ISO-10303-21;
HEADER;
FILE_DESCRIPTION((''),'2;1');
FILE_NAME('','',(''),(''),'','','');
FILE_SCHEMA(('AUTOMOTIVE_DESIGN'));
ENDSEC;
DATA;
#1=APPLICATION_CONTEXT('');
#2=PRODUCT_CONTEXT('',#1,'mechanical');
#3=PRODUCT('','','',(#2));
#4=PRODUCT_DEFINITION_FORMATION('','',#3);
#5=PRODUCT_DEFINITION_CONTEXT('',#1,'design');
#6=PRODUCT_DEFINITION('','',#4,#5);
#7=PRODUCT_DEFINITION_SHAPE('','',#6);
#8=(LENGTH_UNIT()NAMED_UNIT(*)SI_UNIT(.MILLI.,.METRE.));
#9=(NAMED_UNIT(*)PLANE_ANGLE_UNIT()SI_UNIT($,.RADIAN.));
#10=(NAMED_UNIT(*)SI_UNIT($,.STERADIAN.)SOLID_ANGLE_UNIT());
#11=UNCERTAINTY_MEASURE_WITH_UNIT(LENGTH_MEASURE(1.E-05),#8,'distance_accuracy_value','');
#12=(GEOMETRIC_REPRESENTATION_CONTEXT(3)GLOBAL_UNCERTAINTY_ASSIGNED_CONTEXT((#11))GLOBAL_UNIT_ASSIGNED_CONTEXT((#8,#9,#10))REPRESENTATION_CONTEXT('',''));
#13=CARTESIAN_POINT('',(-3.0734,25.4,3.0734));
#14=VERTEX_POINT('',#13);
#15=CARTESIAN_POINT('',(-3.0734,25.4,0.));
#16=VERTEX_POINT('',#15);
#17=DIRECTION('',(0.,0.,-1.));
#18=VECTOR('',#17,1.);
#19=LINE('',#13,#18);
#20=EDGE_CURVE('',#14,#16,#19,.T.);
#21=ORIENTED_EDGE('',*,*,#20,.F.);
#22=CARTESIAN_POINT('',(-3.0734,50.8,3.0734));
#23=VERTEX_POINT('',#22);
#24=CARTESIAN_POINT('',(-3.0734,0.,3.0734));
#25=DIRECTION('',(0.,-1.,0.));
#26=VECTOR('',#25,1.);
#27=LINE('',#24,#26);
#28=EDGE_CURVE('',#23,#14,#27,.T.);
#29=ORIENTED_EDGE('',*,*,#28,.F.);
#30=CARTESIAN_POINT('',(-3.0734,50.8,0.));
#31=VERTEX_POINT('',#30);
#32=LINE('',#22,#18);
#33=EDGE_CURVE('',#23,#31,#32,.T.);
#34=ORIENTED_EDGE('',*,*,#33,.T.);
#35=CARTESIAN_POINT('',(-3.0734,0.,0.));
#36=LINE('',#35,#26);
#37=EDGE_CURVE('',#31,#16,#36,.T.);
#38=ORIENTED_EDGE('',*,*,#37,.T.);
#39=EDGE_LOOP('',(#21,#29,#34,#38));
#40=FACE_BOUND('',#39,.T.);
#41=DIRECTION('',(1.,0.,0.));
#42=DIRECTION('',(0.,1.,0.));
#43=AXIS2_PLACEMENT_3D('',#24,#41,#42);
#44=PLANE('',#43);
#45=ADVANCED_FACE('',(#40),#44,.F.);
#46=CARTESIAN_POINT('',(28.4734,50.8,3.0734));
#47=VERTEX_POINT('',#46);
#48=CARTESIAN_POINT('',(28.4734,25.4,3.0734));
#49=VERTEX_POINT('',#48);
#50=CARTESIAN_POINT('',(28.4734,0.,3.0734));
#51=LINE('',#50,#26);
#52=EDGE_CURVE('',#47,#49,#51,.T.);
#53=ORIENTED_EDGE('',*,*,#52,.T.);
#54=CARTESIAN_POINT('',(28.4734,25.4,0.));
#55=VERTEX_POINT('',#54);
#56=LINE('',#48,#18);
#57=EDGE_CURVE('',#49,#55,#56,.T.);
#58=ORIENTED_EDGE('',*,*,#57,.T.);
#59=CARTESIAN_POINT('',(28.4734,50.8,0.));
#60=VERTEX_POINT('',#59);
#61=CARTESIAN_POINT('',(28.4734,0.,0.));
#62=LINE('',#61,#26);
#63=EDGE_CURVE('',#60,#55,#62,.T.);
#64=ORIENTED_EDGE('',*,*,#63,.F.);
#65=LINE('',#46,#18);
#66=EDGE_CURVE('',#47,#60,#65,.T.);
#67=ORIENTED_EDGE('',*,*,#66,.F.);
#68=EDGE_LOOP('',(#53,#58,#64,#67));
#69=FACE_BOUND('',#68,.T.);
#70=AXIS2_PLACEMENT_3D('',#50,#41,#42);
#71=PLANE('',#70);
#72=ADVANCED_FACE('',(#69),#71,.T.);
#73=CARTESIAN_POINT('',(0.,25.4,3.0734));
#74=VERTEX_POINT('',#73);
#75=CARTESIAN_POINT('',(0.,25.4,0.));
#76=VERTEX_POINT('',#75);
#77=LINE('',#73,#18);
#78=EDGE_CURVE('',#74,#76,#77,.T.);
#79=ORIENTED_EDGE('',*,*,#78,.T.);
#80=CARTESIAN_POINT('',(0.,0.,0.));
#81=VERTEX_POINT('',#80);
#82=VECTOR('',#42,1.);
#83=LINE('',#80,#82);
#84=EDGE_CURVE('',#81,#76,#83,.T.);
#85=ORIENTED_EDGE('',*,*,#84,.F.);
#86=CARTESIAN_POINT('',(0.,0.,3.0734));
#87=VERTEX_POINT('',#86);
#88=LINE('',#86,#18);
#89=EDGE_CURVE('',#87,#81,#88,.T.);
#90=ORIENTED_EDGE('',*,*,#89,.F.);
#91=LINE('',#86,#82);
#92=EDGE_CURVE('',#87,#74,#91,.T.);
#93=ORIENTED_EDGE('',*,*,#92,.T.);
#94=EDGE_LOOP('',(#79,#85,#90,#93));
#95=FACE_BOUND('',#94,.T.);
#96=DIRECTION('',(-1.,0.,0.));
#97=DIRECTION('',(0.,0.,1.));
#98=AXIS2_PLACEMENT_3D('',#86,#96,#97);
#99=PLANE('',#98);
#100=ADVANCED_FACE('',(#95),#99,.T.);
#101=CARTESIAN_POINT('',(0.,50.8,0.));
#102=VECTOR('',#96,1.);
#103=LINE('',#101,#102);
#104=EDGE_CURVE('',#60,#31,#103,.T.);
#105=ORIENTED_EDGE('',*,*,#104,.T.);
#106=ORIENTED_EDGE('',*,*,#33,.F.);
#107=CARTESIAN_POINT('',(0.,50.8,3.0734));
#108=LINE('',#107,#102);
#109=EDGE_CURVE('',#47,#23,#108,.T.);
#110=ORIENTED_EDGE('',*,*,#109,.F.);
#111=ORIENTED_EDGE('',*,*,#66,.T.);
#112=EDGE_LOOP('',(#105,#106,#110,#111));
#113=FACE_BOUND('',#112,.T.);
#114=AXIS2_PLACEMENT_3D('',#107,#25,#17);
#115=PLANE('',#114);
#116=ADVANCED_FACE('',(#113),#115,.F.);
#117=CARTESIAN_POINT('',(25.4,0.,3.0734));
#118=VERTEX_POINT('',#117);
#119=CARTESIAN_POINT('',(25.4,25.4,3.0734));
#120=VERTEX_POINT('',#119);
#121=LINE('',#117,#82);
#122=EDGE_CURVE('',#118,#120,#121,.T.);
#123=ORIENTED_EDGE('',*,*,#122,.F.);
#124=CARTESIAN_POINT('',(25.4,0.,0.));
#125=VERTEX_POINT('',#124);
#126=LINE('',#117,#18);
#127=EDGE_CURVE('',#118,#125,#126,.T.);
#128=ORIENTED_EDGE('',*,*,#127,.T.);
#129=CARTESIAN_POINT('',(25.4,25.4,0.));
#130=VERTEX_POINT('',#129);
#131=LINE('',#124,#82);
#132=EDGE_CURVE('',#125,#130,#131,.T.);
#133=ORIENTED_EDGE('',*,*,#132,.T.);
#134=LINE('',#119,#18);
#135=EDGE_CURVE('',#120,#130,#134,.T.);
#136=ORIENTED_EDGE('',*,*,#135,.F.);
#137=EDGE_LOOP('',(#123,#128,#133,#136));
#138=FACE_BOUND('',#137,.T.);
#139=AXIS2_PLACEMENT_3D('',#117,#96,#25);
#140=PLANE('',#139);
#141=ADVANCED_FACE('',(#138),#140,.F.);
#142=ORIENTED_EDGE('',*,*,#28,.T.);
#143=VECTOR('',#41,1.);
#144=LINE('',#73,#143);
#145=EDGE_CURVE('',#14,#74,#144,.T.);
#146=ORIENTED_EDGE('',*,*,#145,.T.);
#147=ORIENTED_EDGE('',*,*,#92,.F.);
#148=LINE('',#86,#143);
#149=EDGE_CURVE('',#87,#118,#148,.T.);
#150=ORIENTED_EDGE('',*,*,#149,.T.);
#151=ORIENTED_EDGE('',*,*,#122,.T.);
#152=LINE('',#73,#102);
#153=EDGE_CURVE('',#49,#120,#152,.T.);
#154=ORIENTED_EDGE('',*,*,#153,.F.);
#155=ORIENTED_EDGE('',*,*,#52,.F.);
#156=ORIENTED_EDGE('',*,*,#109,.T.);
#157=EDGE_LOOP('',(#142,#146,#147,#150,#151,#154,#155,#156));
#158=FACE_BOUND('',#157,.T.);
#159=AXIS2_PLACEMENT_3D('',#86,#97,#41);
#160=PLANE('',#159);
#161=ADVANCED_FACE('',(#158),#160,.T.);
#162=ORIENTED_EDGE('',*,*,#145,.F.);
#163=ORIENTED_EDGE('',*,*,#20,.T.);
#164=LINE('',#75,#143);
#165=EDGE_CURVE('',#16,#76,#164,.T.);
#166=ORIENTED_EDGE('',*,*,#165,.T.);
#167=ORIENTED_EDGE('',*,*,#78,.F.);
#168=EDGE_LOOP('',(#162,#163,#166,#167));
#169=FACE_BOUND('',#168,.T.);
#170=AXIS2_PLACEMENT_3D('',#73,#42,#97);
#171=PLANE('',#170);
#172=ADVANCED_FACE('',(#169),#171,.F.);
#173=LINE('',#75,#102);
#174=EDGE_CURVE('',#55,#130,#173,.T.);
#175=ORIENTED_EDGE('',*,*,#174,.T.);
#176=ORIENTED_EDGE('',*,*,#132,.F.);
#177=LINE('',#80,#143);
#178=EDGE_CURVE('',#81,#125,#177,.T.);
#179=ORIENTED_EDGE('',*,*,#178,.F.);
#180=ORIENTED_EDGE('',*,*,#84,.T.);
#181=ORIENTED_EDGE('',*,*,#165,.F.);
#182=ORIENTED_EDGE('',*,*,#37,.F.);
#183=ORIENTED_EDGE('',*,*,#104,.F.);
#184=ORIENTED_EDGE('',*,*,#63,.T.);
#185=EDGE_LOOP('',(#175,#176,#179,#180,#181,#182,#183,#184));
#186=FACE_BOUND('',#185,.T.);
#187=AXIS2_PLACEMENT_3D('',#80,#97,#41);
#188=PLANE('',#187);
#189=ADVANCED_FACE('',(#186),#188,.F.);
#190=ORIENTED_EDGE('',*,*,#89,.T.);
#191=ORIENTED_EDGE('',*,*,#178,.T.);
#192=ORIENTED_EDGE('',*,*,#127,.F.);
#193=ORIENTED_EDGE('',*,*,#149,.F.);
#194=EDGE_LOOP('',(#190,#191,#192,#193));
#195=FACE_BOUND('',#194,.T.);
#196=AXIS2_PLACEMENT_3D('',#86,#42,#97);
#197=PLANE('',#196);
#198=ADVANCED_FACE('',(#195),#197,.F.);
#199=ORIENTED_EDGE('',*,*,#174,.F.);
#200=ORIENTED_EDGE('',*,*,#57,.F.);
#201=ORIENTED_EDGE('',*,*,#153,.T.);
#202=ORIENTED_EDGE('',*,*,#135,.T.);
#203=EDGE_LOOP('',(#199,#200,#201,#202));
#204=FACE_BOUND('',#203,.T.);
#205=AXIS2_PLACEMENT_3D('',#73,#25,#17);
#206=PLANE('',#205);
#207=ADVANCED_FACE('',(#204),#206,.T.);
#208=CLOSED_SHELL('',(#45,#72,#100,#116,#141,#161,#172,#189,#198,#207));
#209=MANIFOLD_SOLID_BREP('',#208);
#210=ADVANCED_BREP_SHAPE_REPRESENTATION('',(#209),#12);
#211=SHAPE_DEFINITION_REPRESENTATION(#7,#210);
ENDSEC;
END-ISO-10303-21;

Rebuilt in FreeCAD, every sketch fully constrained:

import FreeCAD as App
import Part
import Sketcher
Q = App.Units.Quantity


def add_polygon(sketch, points):
    """Adds a closed chain of lines whose ends are joined by coincident constraints."""
    first, n = sketch.GeometryCount, len(points)
    for a, b in zip(points, points[1:] + points[:1]):
        sketch.addGeometry(Part.LineSegment(App.Vector(*a, 0), App.Vector(*b, 0)), False)
    for i in range(n):
        sketch.addConstraint(Sketcher.Constraint("Coincident", first + i, 2, first + (i + 1) % n, 1))

doc = App.newDocument("Part")
params = doc.addObject("Spreadsheet::Sheet", "Params")
for row, (alias, value) in enumerate([
    ("sketch1_width", "1 in"),
    ("sketch1_width2", "0.121 in"),
    ("pad1_length", "0.121 in"),
], start=1):
    params.set(f"A{row}", alias)
    params.set(f"B{row}", "=" + value)
    params.setAlias(f"B{row}", alias)

body = doc.addObject("PartDesign::Body", "Body")

sketch1 = doc.addObject("Sketcher::SketchObject", "Sketch")
body.addObject(sketch1)
sketch1.AttachmentSupport = (doc.XY_Plane, [""])
sketch1.MapMode = "FlatFace"
add_polygon(sketch1, [(-3.0734, 50.8), (-3.0734, 25.4), (0, 25.4), (0, 0), (25.4, 0), (25.4, 25.4), (28.4734, 25.4), (28.4734, 50.8)])
sketch1.addConstraint([
    Sketcher.Constraint("Vertical", 0),
    Sketcher.Constraint("Horizontal", 1),
    Sketcher.Constraint("Vertical", 2),
    Sketcher.Constraint("Horizontal", 3),
    Sketcher.Constraint("Vertical", 4),
    Sketcher.Constraint("Horizontal", 5),
    Sketcher.Constraint("Vertical", 6),
    Sketcher.Constraint("Horizontal", 7),
    Sketcher.Constraint("Coincident", 2, 2, -1, 1),
    Sketcher.Constraint("Horizontal", 1, 2, 4, 2),
    Sketcher.Constraint("Equal", 1, 5),
    Sketcher.Constraint("Equal", 3, 0),
    Sketcher.Constraint("Equal", 0, 2),
    Sketcher.Constraint("DistanceX", 3, 1, 3, 2, Q("1 in")),
    Sketcher.Constraint("DistanceX", 1, 1, 1, 2, Q("0.121 in")),
])
sketch1.setExpression("Constraints[21]", "Params.sketch1_width")
sketch1.setExpression("Constraints[22]", "Params.sketch1_width2")
pad1 = doc.addObject("PartDesign::Pad", "Pad")
body.addObject(pad1)
pad1.Profile = sketch1
pad1.setExpression("Length", "Params.pad1_length")

doc.recompute()
